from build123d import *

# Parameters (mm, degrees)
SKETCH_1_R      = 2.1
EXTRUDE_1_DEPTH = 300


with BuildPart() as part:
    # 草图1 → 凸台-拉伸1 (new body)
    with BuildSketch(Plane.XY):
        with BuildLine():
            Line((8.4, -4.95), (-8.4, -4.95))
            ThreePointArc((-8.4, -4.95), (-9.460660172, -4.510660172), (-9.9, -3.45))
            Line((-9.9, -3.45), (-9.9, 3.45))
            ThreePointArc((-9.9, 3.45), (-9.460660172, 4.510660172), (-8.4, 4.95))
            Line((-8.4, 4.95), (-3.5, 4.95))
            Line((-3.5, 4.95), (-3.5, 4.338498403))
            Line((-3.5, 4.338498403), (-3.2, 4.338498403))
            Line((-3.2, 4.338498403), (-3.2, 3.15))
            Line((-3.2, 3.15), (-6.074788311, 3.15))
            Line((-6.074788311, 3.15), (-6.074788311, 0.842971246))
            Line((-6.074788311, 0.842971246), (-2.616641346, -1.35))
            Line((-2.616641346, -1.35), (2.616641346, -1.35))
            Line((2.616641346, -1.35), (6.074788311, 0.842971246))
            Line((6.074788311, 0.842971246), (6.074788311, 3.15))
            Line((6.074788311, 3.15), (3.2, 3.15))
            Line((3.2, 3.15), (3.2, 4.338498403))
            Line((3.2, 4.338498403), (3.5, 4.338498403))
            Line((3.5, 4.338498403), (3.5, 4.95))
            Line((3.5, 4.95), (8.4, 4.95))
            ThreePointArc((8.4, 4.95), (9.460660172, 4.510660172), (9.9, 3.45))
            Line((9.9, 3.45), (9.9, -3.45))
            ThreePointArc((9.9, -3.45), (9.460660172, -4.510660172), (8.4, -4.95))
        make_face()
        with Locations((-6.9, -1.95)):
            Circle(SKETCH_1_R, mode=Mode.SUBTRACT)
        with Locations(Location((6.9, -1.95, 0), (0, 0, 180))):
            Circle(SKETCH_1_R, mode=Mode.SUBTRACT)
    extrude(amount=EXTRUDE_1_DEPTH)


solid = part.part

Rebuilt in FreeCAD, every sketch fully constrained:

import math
import FreeCAD as App
import Part
import Sketcher

V = App.Vector
Q = App.Units.Quantity

doc = App.newDocument("Part")
body = doc.addObject("PartDesign::Body", "Body")

# Sketch on XY plane
sketch1 = body.newObject("Sketcher::SketchObject", "Sketch")
sketch1.AttachmentSupport = (doc.getObject("XY_Plane"), [""])
sketch1.MapMode = "FlatFace"
sketch1.addGeometry(Part.LineSegment(V(-8.4, -4.95, 0), V(8.4, -4.95, 0)), False)
sketch1.addGeometry(Part.ArcOfCircle(Part.Circle(V(8.4, -3.45, 0), V(0, 0, 1), 1.5), math.radians(-90), math.radians(0)), False)
sketch1.addGeometry(Part.LineSegment(V(9.9, -3.45, 0), V(9.9, 3.45, 0)), False)
sketch1.addGeometry(Part.ArcOfCircle(Part.Circle(V(8.4, 3.45, 0), V(0, 0, 1), 1.5), math.radians(0), math.radians(90)), False)
sketch1.addGeometry(Part.LineSegment(V(8.4, 4.95, 0), V(3.5, 4.95, 0)), False)
sketch1.addGeometry(Part.LineSegment(V(3.5, 4.95, 0), V(3.5, 4.338498, 0)), False)
sketch1.addGeometry(Part.LineSegment(V(3.5, 4.338498, 0), V(3.2, 4.338498, 0)), False)
sketch1.addGeometry(Part.LineSegment(V(3.2, 4.338498, 0), V(3.2, 3.15, 0)), False)
sketch1.addGeometry(Part.LineSegment(V(3.2, 3.15, 0), V(6.074788, 3.15, 0)), False)
sketch1.addGeometry(Part.LineSegment(V(6.074788, 3.15, 0), V(6.074788, 0.842971, 0)), False)
sketch1.addGeometry(Part.LineSegment(V(6.074788, 0.842971, 0), V(2.616641, -1.35, 0)), False)
sketch1.addGeometry(Part.LineSegment(V(2.616641, -1.35, 0), V(-2.616641, -1.35, 0)), False)
sketch1.addGeometry(Part.LineSegment(V(-2.616641, -1.35, 0), V(-6.074788, 0.842971, 0)), False)
sketch1.addGeometry(Part.LineSegment(V(-6.074788, 0.842971, 0), V(-6.074788, 3.15, 0)), False)
sketch1.addGeometry(Part.LineSegment(V(-6.074788, 3.15, 0), V(-3.2, 3.15, 0)), False)
sketch1.addGeometry(Part.LineSegment(V(-3.2, 3.15, 0), V(-3.2, 4.338498, 0)), False)
sketch1.addGeometry(Part.LineSegment(V(-3.2, 4.338498, 0), V(-3.5, 4.338498, 0)), False)
sketch1.addGeometry(Part.LineSegment(V(-3.5, 4.338498, 0), V(-3.5, 4.95, 0)), False)
sketch1.addGeometry(Part.LineSegment(V(-3.5, 4.95, 0), V(-8.4, 4.95, 0)), False)
sketch1.addGeometry(Part.ArcOfCircle(Part.Circle(V(-8.4, 3.45, 0), V(0, 0, 1), 1.5), math.radians(90), math.radians(180)), False)
sketch1.addGeometry(Part.LineSegment(V(-9.9, 3.45, 0), V(-9.9, -3.45, 0)), False)
sketch1.addGeometry(Part.ArcOfCircle(Part.Circle(V(-8.4, -3.45, 0), V(0, 0, 1), 1.5), math.radians(180), math.radians(270)), False)
sketch1.addGeometry(Part.Circle(V(6.9, -1.95, 0), V(0, 0, 1), 2.1), False)
sketch1.addGeometry(Part.Circle(V(-6.9, -1.95, 0), V(0, 0, 1), 2.1), False)
sketch1.addConstraint(Sketcher.Constraint("Tangent", 0, 2, 1, 1))
sketch1.addConstraint(Sketcher.Constraint("Tangent", 1, 2, 2, 1))
sketch1.addConstraint(Sketcher.Constraint("Tangent", 2, 2, 3, 1))
sketch1.addConstraint(Sketcher.Constraint("Tangent", 3, 2, 4, 1))
sketch1.addConstraint(Sketcher.Constraint("Coincident", 4, 2, 5, 1))
sketch1.addConstraint(Sketcher.Constraint("Coincident", 5, 2, 6, 1))
sketch1.addConstraint(Sketcher.Constraint("Coincident", 6, 2, 7, 1))
sketch1.addConstraint(Sketcher.Constraint("Coincident", 7, 2, 8, 1))
sketch1.addConstraint(Sketcher.Constraint("Coincident", 8, 2, 9, 1))
sketch1.addConstraint(Sketcher.Constraint("Coincident", 9, 2, 10, 1))
sketch1.addConstraint(Sketcher.Constraint("Coincident", 10, 2, 11, 1))
sketch1.addConstraint(Sketcher.Constraint("Coincident", 11, 2, 12, 1))
sketch1.addConstraint(Sketcher.Constraint("Coincident", 12, 2, 13, 1))
sketch1.addConstraint(Sketcher.Constraint("Coincident", 13, 2, 14, 1))
sketch1.addConstraint(Sketcher.Constraint("Coincident", 14, 2, 15, 1))
sketch1.addConstraint(Sketcher.Constraint("Coincident", 15, 2, 16, 1))
sketch1.addConstraint(Sketcher.Constraint("Coincident", 16, 2, 17, 1))
sketch1.addConstraint(Sketcher.Constraint("Coincident", 17, 2, 18, 1))
sketch1.addConstraint(Sketcher.Constraint("Tangent", 18, 2, 19, 1))
sketch1.addConstraint(Sketcher.Constraint("Tangent", 19, 2, 20, 1))
sketch1.addConstraint(Sketcher.Constraint("Tangent", 20, 2, 21, 1))
sketch1.addConstraint(Sketcher.Constraint("Tangent", 21, 2, 0, 1))
sketch1.addConstraint(Sketcher.Constraint("Horizontal", 0))
sketch1.addConstraint(Sketcher.Constraint("Vertical", 2))
sketch1.addConstraint(Sketcher.Constraint("Horizontal", 4))
sketch1.addConstraint(Sketcher.Constraint("Vertical", 5))
sketch1.addConstraint(Sketcher.Constraint("Horizontal", 6))
sketch1.addConstraint(Sketcher.Constraint("Vertical", 7))
sketch1.addConstraint(Sketcher.Constraint("Horizontal", 8))
sketch1.addConstraint(Sketcher.Constraint("Vertical", 9))
sketch1.addConstraint(Sketcher.Constraint("Horizontal", 11))
sketch1.addConstraint(Sketcher.Constraint("Vertical", 13))
sketch1.addConstraint(Sketcher.Constraint("Horizontal", 14))
sketch1.addConstraint(Sketcher.Constraint("Vertical", 15))
sketch1.addConstraint(Sketcher.Constraint("Horizontal", 16))
sketch1.addConstraint(Sketcher.Constraint("Vertical", 17))
sketch1.addConstraint(Sketcher.Constraint("Horizontal", 18))
sketch1.addConstraint(Sketcher.Constraint("Vertical", 20))
sketch1.addConstraint(Sketcher.Constraint("Equal", 1, 3))
sketch1.addConstraint(Sketcher.Constraint("Equal", 3, 19))
sketch1.addConstraint(Sketcher.Constraint("Equal", 19, 21))
sketch1.addConstraint(Sketcher.Constraint("Equal", 22, 23))
sketch1.addConstraint(Sketcher.Constraint("Symmetric", 1, 3, 19, 3, -1, 1))
sketch1.addConstraint(Sketcher.Constraint("Symmetric", 22, 3, 23, 3, -2))
sketch1.addConstraint(Sketcher.Constraint("Symmetric", 9, 2, 12, 2, -2))
sketch1.addConstraint(Sketcher.Constraint("Symmetric", 7, 2, 14, 2, -2))
sketch1.addConstraint(Sketcher.Constraint("Symmetric", 5, 2, 16, 2, -2))
sketch1.addConstraint(Sketcher.Constraint("Horizontal", 3, 3, 19, 3))
sketch1.addConstraint(Sketcher.Constraint("Equal", 10, 12))
sketch1.addConstraint(Sketcher.Constraint("Diameter", 22, Q("4.2 mm")))
sketch1.addConstraint(Sketcher.Constraint("Radius", 1, Q("1.5 mm")))
sketch1.addConstraint(Sketcher.Constraint("DistanceX", 0, 1, 0, 2, Q("16.8 mm")))
sketch1.addConstraint(Sketcher.Constraint("DistanceX", 4, 2, 4, 1, Q("4.9 mm")))
sketch1.addConstraint(Sketcher.Constraint("DistanceX", 6, 2, 6, 1, Q("0.3 mm")))
sketch1.addConstraint(Sketcher.Constraint("DistanceY", 2, 1, 2, 2, Q("6.9 mm")))
sketch1.addConstraint(Sketcher.Constraint("DistanceY", 0, 2, 22, 3, Q("3 mm")))
sketch1.addConstraint(Sketcher.Constraint("DistanceX", 22, 3, 1, 2, Q("3 mm")))
sketch1.addConstraint(Sketcher.Constraint("DistanceY", 7, 2, 4, 2, Q("1.8 mm")))
sketch1.addConstraint(Sketcher.Constraint("DistanceY", 22, 3, 10, 2, Q("0.6 mm")))
sketch1.addConstraint(Sketcher.Constraint("DistanceY", 5, 2, 5, 1, Q("0.611502 mm")))
sketch1.addConstraint(Sketcher.Constraint("DistanceX", 8, 1, 8, 2, Q("2.874788 mm")))
sketch1.addConstraint(Sketcher.Constraint("DistanceY", 9, 2, 9, 1, Q("2.307029 mm")))
sketch1.addConstraint(Sketcher.Constraint("DistanceX", 11, 2, 11, 1, Q("5.233283 mm")))
pad1 = body.newObject("PartDesign::Pad", "Pad")
pad1.Profile = sketch1
pad1.Length = 300

doc.recompute()
